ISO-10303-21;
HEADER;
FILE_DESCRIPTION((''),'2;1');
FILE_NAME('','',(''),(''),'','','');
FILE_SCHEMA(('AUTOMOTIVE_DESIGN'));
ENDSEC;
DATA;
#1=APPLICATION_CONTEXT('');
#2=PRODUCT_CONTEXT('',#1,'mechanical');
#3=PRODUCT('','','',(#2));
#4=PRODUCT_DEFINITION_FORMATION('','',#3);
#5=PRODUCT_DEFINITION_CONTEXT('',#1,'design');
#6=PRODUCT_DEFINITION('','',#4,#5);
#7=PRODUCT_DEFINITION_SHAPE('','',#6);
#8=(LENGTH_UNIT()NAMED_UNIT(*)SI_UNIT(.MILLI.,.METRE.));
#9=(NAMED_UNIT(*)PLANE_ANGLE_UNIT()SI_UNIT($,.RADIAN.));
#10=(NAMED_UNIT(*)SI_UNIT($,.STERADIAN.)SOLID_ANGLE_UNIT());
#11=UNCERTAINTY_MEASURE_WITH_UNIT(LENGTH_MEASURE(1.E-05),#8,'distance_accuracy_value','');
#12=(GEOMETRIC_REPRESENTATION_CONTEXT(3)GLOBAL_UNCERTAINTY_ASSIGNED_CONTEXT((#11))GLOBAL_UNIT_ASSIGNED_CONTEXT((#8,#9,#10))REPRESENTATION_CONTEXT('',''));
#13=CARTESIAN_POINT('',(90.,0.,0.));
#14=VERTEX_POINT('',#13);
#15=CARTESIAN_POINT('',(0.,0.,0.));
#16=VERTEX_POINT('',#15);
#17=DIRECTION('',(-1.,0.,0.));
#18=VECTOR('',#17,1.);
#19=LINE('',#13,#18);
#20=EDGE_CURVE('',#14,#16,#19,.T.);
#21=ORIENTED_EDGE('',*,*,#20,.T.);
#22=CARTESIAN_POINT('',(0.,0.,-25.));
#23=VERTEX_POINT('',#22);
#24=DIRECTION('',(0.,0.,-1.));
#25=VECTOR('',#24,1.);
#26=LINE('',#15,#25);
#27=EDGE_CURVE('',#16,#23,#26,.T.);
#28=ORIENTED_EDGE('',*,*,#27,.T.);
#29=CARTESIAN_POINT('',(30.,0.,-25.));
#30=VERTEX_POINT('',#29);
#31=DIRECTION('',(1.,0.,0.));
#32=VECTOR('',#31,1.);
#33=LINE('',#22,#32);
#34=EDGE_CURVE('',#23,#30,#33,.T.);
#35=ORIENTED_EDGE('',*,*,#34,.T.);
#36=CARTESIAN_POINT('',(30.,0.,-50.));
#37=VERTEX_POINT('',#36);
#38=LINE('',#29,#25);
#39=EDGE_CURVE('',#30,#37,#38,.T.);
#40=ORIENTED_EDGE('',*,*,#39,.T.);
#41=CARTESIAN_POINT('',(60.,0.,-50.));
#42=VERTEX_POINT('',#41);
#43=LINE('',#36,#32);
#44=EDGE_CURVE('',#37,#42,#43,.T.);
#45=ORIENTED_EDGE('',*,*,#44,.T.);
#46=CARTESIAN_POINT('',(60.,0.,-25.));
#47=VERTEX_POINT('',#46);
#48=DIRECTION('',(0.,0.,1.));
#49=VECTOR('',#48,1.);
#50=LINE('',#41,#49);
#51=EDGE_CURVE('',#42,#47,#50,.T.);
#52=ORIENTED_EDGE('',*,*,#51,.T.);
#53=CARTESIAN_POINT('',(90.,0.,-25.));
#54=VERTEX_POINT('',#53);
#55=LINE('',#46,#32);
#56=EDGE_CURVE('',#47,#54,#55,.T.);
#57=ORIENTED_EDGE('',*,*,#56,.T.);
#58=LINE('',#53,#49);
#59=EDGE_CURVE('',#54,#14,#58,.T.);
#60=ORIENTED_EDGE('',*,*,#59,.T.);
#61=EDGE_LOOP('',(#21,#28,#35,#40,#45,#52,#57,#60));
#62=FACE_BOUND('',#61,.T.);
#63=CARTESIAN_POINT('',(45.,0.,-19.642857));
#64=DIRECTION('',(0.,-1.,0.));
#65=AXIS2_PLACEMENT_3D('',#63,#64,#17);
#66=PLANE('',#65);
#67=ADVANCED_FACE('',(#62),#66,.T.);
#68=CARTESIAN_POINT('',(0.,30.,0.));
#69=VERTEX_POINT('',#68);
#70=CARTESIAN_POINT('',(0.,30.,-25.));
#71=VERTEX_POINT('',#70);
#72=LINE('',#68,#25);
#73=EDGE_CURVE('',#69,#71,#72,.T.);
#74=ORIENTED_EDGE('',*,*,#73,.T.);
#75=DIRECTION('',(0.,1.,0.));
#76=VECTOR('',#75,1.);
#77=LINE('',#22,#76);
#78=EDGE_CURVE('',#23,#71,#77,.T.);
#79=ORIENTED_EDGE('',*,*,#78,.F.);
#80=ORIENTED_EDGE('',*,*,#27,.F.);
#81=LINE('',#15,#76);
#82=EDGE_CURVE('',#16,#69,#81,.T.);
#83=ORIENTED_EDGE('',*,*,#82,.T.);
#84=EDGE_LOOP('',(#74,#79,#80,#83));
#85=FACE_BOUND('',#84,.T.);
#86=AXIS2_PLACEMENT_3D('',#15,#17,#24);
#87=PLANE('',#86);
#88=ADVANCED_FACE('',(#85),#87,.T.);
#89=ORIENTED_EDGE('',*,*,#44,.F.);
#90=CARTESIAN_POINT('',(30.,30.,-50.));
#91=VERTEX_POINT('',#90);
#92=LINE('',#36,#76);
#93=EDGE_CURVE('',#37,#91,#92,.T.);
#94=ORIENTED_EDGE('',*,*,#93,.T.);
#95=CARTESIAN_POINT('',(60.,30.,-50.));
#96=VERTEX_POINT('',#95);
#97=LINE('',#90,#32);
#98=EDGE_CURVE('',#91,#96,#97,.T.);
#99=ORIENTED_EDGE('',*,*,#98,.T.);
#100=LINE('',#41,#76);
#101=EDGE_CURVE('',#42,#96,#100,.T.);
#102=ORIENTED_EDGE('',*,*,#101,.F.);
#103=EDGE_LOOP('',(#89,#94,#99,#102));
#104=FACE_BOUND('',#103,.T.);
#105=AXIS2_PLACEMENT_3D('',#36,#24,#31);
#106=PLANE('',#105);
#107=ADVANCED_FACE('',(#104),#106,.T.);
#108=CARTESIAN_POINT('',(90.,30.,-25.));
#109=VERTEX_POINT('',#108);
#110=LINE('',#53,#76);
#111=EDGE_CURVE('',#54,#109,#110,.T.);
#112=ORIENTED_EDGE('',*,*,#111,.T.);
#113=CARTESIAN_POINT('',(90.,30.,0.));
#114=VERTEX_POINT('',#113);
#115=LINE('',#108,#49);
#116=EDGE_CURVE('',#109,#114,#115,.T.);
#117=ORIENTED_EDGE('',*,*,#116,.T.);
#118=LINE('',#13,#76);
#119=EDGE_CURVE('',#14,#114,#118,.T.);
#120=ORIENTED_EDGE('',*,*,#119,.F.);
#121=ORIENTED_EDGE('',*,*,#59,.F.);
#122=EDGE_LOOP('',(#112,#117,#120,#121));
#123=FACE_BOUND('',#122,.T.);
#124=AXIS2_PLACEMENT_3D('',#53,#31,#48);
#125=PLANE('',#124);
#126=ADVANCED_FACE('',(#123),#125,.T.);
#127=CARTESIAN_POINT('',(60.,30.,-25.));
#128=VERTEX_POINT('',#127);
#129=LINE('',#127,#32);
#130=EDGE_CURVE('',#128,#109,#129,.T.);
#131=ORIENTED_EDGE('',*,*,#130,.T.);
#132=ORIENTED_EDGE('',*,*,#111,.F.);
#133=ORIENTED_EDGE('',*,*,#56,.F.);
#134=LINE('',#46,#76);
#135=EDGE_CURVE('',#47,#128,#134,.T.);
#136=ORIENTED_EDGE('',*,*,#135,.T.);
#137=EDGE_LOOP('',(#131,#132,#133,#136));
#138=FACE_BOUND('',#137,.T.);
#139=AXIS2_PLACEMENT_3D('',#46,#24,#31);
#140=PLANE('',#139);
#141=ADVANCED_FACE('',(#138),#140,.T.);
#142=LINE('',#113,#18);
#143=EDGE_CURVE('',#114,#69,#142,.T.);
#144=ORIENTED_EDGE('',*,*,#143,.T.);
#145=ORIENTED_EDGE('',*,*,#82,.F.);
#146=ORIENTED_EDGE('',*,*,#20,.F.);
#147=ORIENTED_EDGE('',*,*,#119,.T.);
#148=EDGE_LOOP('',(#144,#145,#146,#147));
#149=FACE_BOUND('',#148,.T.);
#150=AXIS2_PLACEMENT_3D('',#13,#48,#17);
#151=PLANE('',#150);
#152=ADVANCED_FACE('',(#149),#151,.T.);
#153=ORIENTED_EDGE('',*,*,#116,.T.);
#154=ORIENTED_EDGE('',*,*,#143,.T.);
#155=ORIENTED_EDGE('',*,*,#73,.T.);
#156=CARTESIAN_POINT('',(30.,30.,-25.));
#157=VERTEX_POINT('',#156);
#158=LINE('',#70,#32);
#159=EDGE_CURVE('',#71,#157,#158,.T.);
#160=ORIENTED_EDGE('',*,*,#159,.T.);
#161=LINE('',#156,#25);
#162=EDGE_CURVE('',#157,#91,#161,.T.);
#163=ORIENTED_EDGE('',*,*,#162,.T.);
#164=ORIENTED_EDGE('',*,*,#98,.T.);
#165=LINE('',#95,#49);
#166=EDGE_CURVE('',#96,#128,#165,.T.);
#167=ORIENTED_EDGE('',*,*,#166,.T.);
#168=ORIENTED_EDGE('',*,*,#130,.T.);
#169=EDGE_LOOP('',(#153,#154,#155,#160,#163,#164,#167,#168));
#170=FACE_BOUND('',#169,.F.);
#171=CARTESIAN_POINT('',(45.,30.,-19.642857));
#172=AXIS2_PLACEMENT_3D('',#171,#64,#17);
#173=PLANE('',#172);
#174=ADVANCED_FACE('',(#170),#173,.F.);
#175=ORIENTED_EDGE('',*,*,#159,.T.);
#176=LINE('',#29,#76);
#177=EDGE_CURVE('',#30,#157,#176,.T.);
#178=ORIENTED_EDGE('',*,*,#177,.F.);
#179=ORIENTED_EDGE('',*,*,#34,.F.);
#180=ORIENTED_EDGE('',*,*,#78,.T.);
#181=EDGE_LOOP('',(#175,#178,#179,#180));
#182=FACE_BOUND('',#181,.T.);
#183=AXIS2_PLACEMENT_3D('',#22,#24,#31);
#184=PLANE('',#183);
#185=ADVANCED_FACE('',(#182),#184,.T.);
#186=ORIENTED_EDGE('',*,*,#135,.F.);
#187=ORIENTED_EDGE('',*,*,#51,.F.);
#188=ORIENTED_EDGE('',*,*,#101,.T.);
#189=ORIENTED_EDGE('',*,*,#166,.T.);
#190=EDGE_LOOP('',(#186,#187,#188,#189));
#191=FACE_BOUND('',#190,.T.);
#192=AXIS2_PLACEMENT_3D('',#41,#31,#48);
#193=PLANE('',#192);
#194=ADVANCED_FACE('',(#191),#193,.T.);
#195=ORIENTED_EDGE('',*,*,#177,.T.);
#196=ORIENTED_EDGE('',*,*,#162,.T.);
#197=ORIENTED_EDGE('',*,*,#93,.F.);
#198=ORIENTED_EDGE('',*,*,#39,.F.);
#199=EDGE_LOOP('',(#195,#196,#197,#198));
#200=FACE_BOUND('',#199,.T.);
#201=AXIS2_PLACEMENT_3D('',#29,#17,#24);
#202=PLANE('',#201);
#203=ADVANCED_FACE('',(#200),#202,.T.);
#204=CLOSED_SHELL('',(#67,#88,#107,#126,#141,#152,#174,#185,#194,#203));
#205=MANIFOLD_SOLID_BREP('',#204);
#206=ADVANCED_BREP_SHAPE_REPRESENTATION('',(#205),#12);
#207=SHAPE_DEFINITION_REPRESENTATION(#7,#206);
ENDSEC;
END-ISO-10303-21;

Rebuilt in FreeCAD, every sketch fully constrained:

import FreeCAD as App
import Part
import Sketcher
Q = App.Units.Quantity

doc = App.newDocument("Part")
body = doc.addObject("PartDesign::Body", "Body")

# Sketch on XZ plane
sketch1 = body.newObject("Sketcher::SketchObject", "Sketch")
sketch1.AttachmentSupport = (doc.getObject("XZ_Plane"), [""])
sketch1.MapMode = "FlatFace"
sketch1.addGeometry([
    Part.LineSegment(App.Vector(0, -25, 0), App.Vector(0, 0, 0)),  # 0
    Part.LineSegment(App.Vector(0, 0, 0), App.Vector(90, 0, 0)),  # 1
    Part.LineSegment(App.Vector(90, 0, 0), App.Vector(90, -25, 0)),  # 2
    Part.LineSegment(App.Vector(90, -25, 0), App.Vector(60, -25, 0)),  # 3
    Part.LineSegment(App.Vector(60, -25, 0), App.Vector(60, -50, 0)),  # 4
    Part.LineSegment(App.Vector(60, -50, 0), App.Vector(30, -50, 0)),  # 5
    Part.LineSegment(App.Vector(30, -50, 0), App.Vector(30, -25, 0)),  # 6
    Part.LineSegment(App.Vector(30, -25, 0), App.Vector(0, -25, 0)),  # 7
], False)
sketch1.addConstraint([
    Sketcher.Constraint("Coincident", 0, 2, 1, 1),
    Sketcher.Constraint("Coincident", 1, 2, 2, 1),
    Sketcher.Constraint("Coincident", 2, 2, 3, 1),
    Sketcher.Constraint("Coincident", 3, 2, 4, 1),
    Sketcher.Constraint("Coincident", 4, 2, 5, 1),
    Sketcher.Constraint("Coincident", 5, 2, 6, 1),
    Sketcher.Constraint("Coincident", 6, 2, 7, 1),
    Sketcher.Constraint("Coincident", 7, 2, 0, 1),
    Sketcher.Constraint("Vertical", 0),
    Sketcher.Constraint("Horizontal", 1),
    Sketcher.Constraint("Vertical", 2),
    Sketcher.Constraint("Horizontal", 3),
    Sketcher.Constraint("Vertical", 4),
    Sketcher.Constraint("Horizontal", 5),
    Sketcher.Constraint("Vertical", 6),
    Sketcher.Constraint("Horizontal", 7),
    Sketcher.Constraint("Coincident", 0, 2, -1, 1),
    Sketcher.Constraint("Horizontal", 3, 2, 6, 2),
    Sketcher.Constraint("Equal", 3, 5),
    Sketcher.Constraint("Equal", 5, 7),
    Sketcher.Constraint("Equal", 2, 4),
    Sketcher.Constraint("DistanceX", 1, 1, 1, 2, Q("90 mm")),
    Sketcher.Constraint("DistanceY", 0, 1, 0, 2, Q("25 mm")),
])
pad1 = body.newObject("PartDesign::Pad", "Pad")
pad1.Profile = sketch1
pad1.Length = 30
pad1.Reversed = True

doc.recompute()
